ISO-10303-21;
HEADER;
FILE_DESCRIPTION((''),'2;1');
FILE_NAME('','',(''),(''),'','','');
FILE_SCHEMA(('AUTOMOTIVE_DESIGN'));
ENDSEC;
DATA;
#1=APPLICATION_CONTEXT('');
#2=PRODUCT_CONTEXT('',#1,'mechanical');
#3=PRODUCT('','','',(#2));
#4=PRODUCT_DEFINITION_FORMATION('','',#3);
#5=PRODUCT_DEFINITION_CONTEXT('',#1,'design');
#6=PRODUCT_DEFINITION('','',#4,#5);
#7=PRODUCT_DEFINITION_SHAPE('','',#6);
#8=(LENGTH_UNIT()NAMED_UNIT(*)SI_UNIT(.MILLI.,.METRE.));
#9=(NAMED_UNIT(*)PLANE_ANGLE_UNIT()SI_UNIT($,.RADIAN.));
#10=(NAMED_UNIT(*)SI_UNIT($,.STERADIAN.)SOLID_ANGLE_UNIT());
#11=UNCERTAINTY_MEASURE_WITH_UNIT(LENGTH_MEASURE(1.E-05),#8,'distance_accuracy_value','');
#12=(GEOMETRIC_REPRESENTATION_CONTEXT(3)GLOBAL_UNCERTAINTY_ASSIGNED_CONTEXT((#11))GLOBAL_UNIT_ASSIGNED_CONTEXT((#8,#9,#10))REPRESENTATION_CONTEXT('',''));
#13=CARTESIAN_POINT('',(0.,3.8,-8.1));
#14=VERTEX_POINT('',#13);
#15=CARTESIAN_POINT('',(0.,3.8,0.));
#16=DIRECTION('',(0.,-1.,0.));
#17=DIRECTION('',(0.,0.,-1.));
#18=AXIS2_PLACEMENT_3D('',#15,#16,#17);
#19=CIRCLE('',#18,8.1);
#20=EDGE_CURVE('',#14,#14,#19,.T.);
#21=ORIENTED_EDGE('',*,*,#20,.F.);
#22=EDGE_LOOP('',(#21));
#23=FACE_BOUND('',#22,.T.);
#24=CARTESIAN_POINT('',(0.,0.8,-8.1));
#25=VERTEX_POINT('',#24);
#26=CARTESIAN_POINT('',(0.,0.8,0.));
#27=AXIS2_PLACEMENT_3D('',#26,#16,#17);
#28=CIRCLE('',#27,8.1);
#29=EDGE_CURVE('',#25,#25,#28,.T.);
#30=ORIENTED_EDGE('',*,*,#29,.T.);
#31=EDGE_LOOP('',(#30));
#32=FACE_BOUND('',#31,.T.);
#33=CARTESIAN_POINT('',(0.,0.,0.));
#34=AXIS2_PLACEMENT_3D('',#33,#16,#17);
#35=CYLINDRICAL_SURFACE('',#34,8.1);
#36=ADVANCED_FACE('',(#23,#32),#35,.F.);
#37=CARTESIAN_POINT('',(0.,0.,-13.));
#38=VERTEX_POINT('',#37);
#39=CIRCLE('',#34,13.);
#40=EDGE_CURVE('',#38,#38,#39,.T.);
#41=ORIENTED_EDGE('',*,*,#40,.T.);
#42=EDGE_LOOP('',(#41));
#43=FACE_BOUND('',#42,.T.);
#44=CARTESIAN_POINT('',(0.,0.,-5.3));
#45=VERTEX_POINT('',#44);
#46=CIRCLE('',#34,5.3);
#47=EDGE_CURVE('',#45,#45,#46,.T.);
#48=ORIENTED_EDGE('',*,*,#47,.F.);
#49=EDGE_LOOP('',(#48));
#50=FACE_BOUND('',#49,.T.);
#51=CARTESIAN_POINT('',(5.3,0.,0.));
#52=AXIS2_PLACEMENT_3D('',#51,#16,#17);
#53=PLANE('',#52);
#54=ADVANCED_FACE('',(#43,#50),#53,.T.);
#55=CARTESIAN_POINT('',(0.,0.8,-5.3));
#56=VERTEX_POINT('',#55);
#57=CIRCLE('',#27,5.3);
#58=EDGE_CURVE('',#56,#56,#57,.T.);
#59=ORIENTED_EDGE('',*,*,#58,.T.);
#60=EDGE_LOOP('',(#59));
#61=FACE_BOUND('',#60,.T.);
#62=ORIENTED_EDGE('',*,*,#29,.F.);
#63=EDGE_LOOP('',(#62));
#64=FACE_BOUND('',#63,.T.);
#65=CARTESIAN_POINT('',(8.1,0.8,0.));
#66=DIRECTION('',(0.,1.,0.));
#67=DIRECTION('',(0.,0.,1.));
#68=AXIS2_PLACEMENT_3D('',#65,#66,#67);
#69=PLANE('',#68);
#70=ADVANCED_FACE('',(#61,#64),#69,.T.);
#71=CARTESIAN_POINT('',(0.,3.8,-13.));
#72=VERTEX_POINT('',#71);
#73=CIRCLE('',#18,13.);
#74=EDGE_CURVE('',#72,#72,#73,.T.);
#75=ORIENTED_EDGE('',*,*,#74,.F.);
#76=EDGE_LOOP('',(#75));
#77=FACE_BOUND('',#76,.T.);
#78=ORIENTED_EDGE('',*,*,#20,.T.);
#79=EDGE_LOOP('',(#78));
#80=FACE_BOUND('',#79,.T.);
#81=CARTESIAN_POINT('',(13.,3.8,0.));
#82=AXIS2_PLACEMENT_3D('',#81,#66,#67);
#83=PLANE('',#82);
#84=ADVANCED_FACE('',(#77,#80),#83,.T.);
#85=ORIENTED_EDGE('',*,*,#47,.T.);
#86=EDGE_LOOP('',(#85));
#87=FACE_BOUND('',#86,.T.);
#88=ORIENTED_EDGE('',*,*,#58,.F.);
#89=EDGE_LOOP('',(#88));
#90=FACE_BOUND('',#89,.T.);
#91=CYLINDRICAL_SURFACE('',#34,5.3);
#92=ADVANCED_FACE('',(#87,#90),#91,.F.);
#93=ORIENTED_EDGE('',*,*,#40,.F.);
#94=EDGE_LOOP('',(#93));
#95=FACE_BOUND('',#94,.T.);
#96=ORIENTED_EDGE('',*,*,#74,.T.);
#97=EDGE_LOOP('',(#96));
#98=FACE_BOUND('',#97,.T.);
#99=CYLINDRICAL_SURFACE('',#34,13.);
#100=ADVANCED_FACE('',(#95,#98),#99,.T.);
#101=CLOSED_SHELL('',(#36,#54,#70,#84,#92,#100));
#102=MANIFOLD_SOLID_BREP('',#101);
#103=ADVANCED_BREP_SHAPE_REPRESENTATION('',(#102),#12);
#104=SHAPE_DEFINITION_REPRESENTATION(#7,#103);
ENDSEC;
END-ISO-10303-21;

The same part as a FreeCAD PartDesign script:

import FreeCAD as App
import Part
import Sketcher

V = App.Vector
Q = App.Units.Quantity


def add_polygon(sketch, points):
    """Adds a closed chain of lines whose ends are joined by coincident constraints."""
    first, n = sketch.GeometryCount, len(points)
    for a, b in zip(points, points[1:] + points[:1]):
        sketch.addGeometry(Part.LineSegment(App.Vector(*a, 0), App.Vector(*b, 0)), False)
    for i in range(n):
        sketch.addConstraint(Sketcher.Constraint("Coincident", first + i, 2, first + (i + 1) % n, 1))

doc = App.newDocument("Part")
body = doc.addObject("PartDesign::Body", "Body")

sketch1 = doc.addObject("Sketcher::SketchObject", "Sketch")
body.addObject(sketch1)
sketch1.AttachmentSupport = (doc.XY_Plane, [""])
sketch1.MapMode = "FlatFace"
add_polygon(sketch1, [(5.3, 0), (13, 0), (13, 3.8), (8.1, 3.8), (8.1, 0.8), (5.3, 0.8)])
sketch1.addConstraint([
    Sketcher.Constraint("Horizontal", 0),
    Sketcher.Constraint("Vertical", 1),
    Sketcher.Constraint("Horizontal", 2),
    Sketcher.Constraint("Vertical", 3),
    Sketcher.Constraint("Horizontal", 4),
    Sketcher.Constraint("Vertical", 5),
    Sketcher.Constraint("PointOnObject", 0, 2, -1),
    Sketcher.Constraint("DistanceY", 3, 2, 3, 1, Q("3 mm")),
    Sketcher.Constraint("DistanceX", 0, 1, 0, 2, Q("7.7 mm")),
    Sketcher.Constraint("DistanceX", 2, 2, 2, 1, Q("4.9 mm")),
    Sketcher.Constraint("DistanceY", 1, 1, 1, 2, Q("3.8 mm")),
    Sketcher.Constraint("DistanceX", -1, 1, 0, 2, Q("13 mm")),
])
revolution = doc.addObject("PartDesign::Revolution", "Revolution")
body.addObject(revolution)
revolution.Profile = sketch1
revolution.ReferenceAxis = (sketch1, ["V_Axis"])
revolution.Angle = 360

doc.recompute()
